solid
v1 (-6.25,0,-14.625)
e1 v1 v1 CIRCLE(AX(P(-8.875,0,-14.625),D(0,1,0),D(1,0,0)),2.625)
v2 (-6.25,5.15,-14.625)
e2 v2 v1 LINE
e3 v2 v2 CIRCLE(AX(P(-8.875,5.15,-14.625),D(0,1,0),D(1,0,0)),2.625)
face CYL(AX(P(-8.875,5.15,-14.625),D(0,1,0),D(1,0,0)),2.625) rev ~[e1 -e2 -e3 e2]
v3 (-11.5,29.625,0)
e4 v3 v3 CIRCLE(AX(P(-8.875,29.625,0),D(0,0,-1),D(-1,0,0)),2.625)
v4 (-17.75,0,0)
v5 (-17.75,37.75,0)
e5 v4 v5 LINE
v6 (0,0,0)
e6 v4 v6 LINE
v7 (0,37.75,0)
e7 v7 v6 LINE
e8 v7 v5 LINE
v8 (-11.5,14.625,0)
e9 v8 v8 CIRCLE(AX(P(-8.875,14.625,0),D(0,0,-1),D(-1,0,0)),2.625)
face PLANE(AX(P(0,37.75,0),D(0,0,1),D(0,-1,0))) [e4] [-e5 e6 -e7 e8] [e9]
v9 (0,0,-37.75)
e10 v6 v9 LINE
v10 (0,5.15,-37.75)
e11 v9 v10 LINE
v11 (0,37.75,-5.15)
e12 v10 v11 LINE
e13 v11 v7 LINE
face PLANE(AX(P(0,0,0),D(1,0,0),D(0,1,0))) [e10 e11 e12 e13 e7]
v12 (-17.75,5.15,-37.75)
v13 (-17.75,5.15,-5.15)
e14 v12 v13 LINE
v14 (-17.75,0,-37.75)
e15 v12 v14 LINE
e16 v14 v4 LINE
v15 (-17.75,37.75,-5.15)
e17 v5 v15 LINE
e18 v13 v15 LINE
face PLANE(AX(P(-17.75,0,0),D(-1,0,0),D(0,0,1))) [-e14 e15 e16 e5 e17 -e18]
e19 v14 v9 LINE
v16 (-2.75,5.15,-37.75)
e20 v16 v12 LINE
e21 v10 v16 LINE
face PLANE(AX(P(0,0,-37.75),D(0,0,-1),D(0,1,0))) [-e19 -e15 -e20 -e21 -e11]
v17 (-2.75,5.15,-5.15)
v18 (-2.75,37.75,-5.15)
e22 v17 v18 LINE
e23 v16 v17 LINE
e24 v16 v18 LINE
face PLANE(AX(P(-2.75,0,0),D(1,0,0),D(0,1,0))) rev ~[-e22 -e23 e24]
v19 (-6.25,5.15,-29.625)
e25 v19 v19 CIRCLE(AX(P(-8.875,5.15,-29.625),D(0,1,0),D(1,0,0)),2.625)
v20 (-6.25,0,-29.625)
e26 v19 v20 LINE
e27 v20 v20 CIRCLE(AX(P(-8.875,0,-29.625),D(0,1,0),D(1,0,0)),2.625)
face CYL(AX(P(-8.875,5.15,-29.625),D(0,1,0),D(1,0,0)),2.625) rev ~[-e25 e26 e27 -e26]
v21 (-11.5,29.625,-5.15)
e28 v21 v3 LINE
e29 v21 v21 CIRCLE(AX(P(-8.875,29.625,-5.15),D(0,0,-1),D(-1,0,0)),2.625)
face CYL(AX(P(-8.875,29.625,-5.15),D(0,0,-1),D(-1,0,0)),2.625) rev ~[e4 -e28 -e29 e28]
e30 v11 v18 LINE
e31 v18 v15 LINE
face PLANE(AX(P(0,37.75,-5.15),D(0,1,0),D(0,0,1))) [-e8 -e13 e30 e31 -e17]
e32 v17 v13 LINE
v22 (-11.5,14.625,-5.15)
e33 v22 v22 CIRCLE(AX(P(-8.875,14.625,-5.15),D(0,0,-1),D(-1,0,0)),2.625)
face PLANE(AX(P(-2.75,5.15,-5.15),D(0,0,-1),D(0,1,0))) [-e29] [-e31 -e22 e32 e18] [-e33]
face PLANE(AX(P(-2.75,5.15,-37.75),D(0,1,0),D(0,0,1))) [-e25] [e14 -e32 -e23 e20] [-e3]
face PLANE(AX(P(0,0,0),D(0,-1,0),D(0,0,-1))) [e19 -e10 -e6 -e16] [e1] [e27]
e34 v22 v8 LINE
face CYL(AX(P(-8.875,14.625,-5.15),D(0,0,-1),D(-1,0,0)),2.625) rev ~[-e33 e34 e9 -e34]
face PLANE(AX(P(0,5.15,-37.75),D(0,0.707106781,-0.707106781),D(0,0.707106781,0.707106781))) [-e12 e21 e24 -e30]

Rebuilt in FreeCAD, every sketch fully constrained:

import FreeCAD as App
import Part
import Sketcher
from FreeCAD import Vector
Q = App.Units.Quantity

doc = App.newDocument("Part")
body = doc.addObject("PartDesign::Body", "Body")

sketch1 = body.newObject("Sketcher::SketchObject", "Sketch")
sketch1.AttachmentSupport = (doc.getObject("YZ_Plane"), [""])
sketch1.MapMode = "FlatFace"
sketch1.addGeometry(Part.LineSegment(Vector(38, 0, 0), Vector(0, 0, 0)), False)
sketch1.addGeometry(Part.LineSegment(Vector(0, 0, 0), Vector(0, -38, 0)), False)
sketch1.addGeometry(Part.LineSegment(Vector(0, -38, 0), Vector(5, -38, 0)), False)
sketch1.addGeometry(Part.LineSegment(Vector(5, -38, 0), Vector(38, -5, 0)), False)
sketch1.addGeometry(Part.LineSegment(Vector(38, -5, 0), Vector(38, 0, 0)), False)
sketch1.addConstraint(Sketcher.Constraint("Coincident", 0, 2, 1, 1))
sketch1.addConstraint(Sketcher.Constraint("Coincident", 1, 2, 2, 1))
sketch1.addConstraint(Sketcher.Constraint("Coincident", 2, 2, 3, 1))
sketch1.addConstraint(Sketcher.Constraint("Coincident", 3, 2, 4, 1))
sketch1.addConstraint(Sketcher.Constraint("Coincident", 4, 2, 0, 1))
sketch1.addConstraint(Sketcher.Constraint("Horizontal", 0))
sketch1.addConstraint(Sketcher.Constraint("Vertical", 1))
sketch1.addConstraint(Sketcher.Constraint("Horizontal", 2))
sketch1.addConstraint(Sketcher.Constraint("Vertical", 4))
sketch1.addConstraint(Sketcher.Constraint("Coincident", 0, 2, -1, 1))
sketch1.addConstraint(Sketcher.Constraint("Equal", 0, 1))
sketch1.addConstraint(Sketcher.Constraint("Equal", 2, 4))
sketch1.addConstraint(Sketcher.Constraint("DistanceX", 0, 2, 0, 1, Q("37.75 mm")))
sketch1.addConstraint(Sketcher.Constraint("DistanceX", 2, 1, 2, 2, Q("5.15 mm")))
pad1 = body.newObject("PartDesign::Pad", "Pad")
pad1.Profile = sketch1
pad1.Length = 2.75
pad1.Reversed = True

sketch2 = body.newObject("Sketcher::SketchObject", "Sketch001")
sketch2.AttachmentSupport = (doc.getObject("YZ_Plane"), [""])
sketch2.MapMode = "FlatFace"
sketch2.AttachmentOffset = App.Placement(Vector(0, 0, -2.75), App.Rotation())
sketch2.addGeometry(Part.LineSegment(Vector(5, -5, 0), Vector(5, -38, 0)), False)
sketch2.addGeometry(Part.LineSegment(Vector(5, -38, 0), Vector(0, -38, 0)), False)
sketch2.addGeometry(Part.LineSegment(Vector(0, -38, 0), Vector(0, 0, 0)), False)
sketch2.addGeometry(Part.LineSegment(Vector(0, 0, 0), Vector(38, 0, 0)), False)
sketch2.addGeometry(Part.LineSegment(Vector(38, 0, 0), Vector(38, -5, 0)), False)
sketch2.addGeometry(Part.LineSegment(Vector(38, -5, 0), Vector(5, -5, 0)), False)
sketch2.addConstraint(Sketcher.Constraint("Coincident", 0, 2, 1, 1))
sketch2.addConstraint(Sketcher.Constraint("Coincident", 1, 2, 2, 1))
sketch2.addConstraint(Sketcher.Constraint("Coincident", 2, 2, 3, 1))
sketch2.addConstraint(Sketcher.Constraint("Coincident", 3, 2, 4, 1))
sketch2.addConstraint(Sketcher.Constraint("Coincident", 4, 2, 5, 1))
sketch2.addConstraint(Sketcher.Constraint("Coincident", 5, 2, 0, 1))
sketch2.addConstraint(Sketcher.Constraint("Vertical", 0))
sketch2.addConstraint(Sketcher.Constraint("Horizontal", 1))
sketch2.addConstraint(Sketcher.Constraint("Vertical", 2))
sketch2.addConstraint(Sketcher.Constraint("Horizontal", 3))
sketch2.addConstraint(Sketcher.Constraint("Vertical", 4))
sketch2.addConstraint(Sketcher.Constraint("Horizontal", 5))
sketch2.addConstraint(Sketcher.Constraint("Coincident", 2, 2, -1, 1))
sketch2.addConstraint(Sketcher.Constraint("Equal", 5, 0))
sketch2.addConstraint(Sketcher.Constraint("Equal", 3, 2))
sketch2.addConstraint(Sketcher.Constraint("DistanceX", 5, 2, 5, 1, Q("32.6 mm")))
sketch2.addConstraint(Sketcher.Constraint("DistanceX", 1, 2, 1, 1, Q("5.15 mm")))
pad2 = body.newObject("PartDesign::Pad", "Pad001")
pad2.Profile = sketch2
pad2.Length = 15
pad2.Reversed = True

sketch3 = body.newObject("Sketcher::SketchObject", "Sketch002")
sketch3.AttachmentSupport = (doc.getObject("XZ_Plane"), [""])
sketch3.MapMode = "FlatFace"
sketch3.AttachmentOffset = App.Placement(Vector(0, 0, -5.15), App.Rotation())
sketch3.addGeometry(Part.Circle(Vector(-8.9, -29.6, 0), Vector(0, 0, 1), 2.6), False)
sketch3.addGeometry(Part.Circle(Vector(-8.9, -14.6, 0), Vector(0, 0, 1), 2.6), False)
sketch3.addConstraint(Sketcher.Constraint("Equal", 0, 1))
sketch3.addConstraint(Sketcher.Constraint("Vertical", 0, 3, 1, 3))
sketch3.addConstraint(Sketcher.Constraint("Diameter", 0, Q("5.25 mm")))
sketch3.addConstraint(Sketcher.Constraint("DistanceY", 0, 3, 1, 3, Q("15 mm")))
sketch3.addConstraint(Sketcher.Constraint("DistanceX", 0, 3, -1, 1, Q("8.875 mm")))
sketch3.addConstraint(Sketcher.Constraint("DistanceY", 0, 3, -1, 1, Q("29.625 mm")))
pocket1 = body.newObject("PartDesign::Pocket", "Pocket")
pocket1.Profile = sketch3
pocket1.Type = "UpToFirst"
pocket1.Reversed = True

sketch4 = body.newObject("Sketcher::SketchObject", "Sketch003")
sketch4.AttachmentSupport = (doc.getObject("XY_Plane"), [""])
sketch4.MapMode = "FlatFace"
sketch4.AttachmentOffset = App.Placement(Vector(0, 0, -5.15), App.Rotation())
sketch4.addGeometry(Part.Circle(Vector(-8.9, 29.6, 0), Vector(0, 0, 1), 2.6), False)
sketch4.addGeometry(Part.Circle(Vector(-8.9, 14.6, 0), Vector(0, 0, 1), 2.6), False)
sketch4.addConstraint(Sketcher.Constraint("Equal", 0, 1))
sketch4.addConstraint(Sketcher.Constraint("Vertical", 0, 3, 1, 3))
sketch4.addConstraint(Sketcher.Constraint("Diameter", 0, Q("5.25 mm")))
sketch4.addConstraint(Sketcher.Constraint("DistanceY", 1, 3, 0, 3, Q("15 mm")))
sketch4.addConstraint(Sketcher.Constraint("DistanceX", 0, 3, -1, 1, Q("8.875 mm")))
sketch4.addConstraint(Sketcher.Constraint("DistanceY", -1, 1, 0, 3, Q("29.625 mm")))
pocket2 = body.newObject("PartDesign::Pocket", "Pocket001")
pocket2.Profile = sketch4
pocket2.Type = "UpToFirst"
pocket2.Reversed = True

doc.recompute()
